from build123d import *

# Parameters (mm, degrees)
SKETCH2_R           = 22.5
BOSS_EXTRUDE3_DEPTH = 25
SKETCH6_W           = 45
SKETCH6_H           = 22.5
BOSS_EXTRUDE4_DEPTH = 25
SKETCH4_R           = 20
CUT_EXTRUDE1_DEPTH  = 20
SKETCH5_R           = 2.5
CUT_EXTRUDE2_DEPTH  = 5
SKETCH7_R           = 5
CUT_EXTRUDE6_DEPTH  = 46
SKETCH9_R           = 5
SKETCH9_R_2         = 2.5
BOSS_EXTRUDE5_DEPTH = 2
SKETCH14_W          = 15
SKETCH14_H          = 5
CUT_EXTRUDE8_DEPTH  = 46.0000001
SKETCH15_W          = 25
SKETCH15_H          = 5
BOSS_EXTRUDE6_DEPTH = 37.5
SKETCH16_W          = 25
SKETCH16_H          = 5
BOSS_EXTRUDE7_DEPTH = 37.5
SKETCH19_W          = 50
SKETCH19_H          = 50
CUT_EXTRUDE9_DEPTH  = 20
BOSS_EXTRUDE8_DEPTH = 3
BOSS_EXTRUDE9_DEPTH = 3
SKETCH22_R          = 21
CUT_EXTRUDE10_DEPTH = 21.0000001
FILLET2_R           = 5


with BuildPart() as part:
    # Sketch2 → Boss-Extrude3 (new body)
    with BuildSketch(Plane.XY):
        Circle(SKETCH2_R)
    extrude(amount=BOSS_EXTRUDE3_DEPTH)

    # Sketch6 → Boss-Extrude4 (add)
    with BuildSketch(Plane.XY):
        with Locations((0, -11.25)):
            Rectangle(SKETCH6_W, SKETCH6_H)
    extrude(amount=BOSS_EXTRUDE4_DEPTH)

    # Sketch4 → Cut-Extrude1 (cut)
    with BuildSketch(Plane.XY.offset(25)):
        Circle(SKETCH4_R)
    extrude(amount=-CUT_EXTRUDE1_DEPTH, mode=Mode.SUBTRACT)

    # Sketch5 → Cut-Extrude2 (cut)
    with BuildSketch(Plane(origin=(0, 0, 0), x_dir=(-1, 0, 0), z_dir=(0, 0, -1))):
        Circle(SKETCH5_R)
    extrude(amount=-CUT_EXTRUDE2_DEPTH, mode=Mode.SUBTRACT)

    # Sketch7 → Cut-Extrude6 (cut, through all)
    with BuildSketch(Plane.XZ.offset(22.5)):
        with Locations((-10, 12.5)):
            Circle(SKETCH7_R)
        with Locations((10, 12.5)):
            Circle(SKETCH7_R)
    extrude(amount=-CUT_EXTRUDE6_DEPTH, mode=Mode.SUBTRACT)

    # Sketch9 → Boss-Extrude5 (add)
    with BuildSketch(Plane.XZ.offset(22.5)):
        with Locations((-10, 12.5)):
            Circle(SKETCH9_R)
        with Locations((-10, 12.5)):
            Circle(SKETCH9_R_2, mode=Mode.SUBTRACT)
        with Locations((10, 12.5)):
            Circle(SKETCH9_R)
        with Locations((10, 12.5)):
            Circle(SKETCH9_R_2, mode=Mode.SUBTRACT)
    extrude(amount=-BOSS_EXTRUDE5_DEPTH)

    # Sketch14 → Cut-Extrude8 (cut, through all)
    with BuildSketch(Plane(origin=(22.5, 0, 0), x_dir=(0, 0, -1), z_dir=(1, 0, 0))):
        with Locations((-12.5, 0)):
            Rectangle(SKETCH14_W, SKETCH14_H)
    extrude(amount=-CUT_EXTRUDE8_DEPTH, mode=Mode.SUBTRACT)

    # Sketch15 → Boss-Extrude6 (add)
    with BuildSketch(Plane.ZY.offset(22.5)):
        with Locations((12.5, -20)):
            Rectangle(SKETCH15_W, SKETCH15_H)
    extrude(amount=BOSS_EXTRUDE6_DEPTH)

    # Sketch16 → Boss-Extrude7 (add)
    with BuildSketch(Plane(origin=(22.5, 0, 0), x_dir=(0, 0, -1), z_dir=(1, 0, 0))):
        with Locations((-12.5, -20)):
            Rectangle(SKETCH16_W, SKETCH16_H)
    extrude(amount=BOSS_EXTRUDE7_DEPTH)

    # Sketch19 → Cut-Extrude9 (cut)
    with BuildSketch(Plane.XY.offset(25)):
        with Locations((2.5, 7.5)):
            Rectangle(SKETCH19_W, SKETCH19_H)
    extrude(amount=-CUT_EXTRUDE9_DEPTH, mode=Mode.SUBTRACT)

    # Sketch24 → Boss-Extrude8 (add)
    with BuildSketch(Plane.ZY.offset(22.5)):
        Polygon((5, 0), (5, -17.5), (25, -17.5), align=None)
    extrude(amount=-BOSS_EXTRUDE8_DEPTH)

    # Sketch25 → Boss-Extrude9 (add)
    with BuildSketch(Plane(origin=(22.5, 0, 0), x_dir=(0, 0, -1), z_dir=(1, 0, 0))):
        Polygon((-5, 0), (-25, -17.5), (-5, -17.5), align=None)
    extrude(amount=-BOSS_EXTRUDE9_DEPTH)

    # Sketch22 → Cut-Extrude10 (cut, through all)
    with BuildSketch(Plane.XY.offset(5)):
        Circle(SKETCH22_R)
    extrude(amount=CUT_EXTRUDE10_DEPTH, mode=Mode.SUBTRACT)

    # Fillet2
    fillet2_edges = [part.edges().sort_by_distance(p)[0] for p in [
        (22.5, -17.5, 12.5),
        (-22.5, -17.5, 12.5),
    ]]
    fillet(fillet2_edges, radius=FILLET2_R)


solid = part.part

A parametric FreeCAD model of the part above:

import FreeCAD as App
import Part
import Sketcher


def edges_at(feature, points):
    """Names of the edges that pass closest to the given points."""
    edges = feature.Shape.Edges
    near = lambda p: min(range(len(edges)), key=lambda i: edges[i].distToShape(Part.Vertex(*p))[0])
    return sorted({f"Edge{near(p) + 1}" for p in points})

doc = App.newDocument("Part")
body = doc.addObject("PartDesign::Body", "Body")

sketch1 = doc.addObject("Sketcher::SketchObject", "Sketch")
body.addObject(sketch1)
sketch1.AttachmentSupport = (doc.XY_Plane, [""])
sketch1.MapMode = "FlatFace"
sketch1.addGeometry(Part.Circle(App.Vector(0, 0, 0), App.Vector(0, 0, 1), 22.5), False)
sketch1.addConstraint([
    Sketcher.Constraint("Coincident", 0, 3, -1, 1),
    Sketcher.Constraint("Diameter", 0, 45.0),
])
pad1 = doc.addObject("PartDesign::Pad", "Pad")
body.addObject(pad1)
pad1.Profile = sketch1
pad1.Length = 25

sketch2 = doc.addObject("Sketcher::SketchObject", "Sketch001")
body.addObject(sketch2)
sketch2.AttachmentSupport = (doc.XY_Plane, [""])
sketch2.MapMode = "FlatFace"
sketch2.addGeometry([
    Part.LineSegment(App.Vector(-22.5, 0, 0), App.Vector(-22.5, -22.5, 0)),
    Part.LineSegment(App.Vector(-22.5, -22.5, 0), App.Vector(22.5, -22.5, 0)),
    Part.LineSegment(App.Vector(22.5, -22.5, 0), App.Vector(22.5, 0, 0)),
    Part.LineSegment(App.Vector(22.5, 0, 0), App.Vector(-22.5, 0, 0)),
], False)
sketch2.addConstraint([
    Sketcher.Constraint("Coincident", 0, 2, 1, 1),
    Sketcher.Constraint("Coincident", 1, 2, 2, 1),
    Sketcher.Constraint("Coincident", 2, 2, 3, 1),
    Sketcher.Constraint("Coincident", 3, 2, 0, 1),
    Sketcher.Constraint("Vertical", 0),
    Sketcher.Constraint("Horizontal", 1),
    Sketcher.Constraint("Vertical", 2),
    Sketcher.Constraint("Horizontal", 3),
    Sketcher.Constraint("Symmetric", 2, 2, 3, 2, -1, 1),
    Sketcher.Constraint("DistanceX", 1, 1, 1, 2, 45.0),
    Sketcher.Constraint("DistanceY", 0, 2, 0, 1, 22.5),
])
pad2 = doc.addObject("PartDesign::Pad", "Pad001")
body.addObject(pad2)
pad2.Profile = sketch2
pad2.Length = 25

sketch3 = doc.addObject("Sketcher::SketchObject", "Sketch002")
body.addObject(sketch3)
sketch3.AttachmentSupport = (doc.XY_Plane, [""])
sketch3.MapMode = "FlatFace"
sketch3.AttachmentOffset = App.Placement(App.Vector(0, 0, 25), App.Rotation())
sketch3.addGeometry(Part.Circle(App.Vector(0, 0, 0), App.Vector(0, 0, 1), 20), False)
sketch3.addConstraint([
    Sketcher.Constraint("Coincident", 0, 3, -1, 1),
    Sketcher.Constraint("Diameter", 0, 40.0),
])
pocket1 = doc.addObject("PartDesign::Pocket", "Pocket")
body.addObject(pocket1)
pocket1.Profile = sketch3
pocket1.Length = 20

sketch4 = doc.addObject("Sketcher::SketchObject", "Sketch003")
body.addObject(sketch4)
sketch4.AttachmentSupport = (doc.XY_Plane, [""])
sketch4.MapMode = "FlatFace"
sketch4.addGeometry(Part.Circle(App.Vector(0, 0, 0), App.Vector(0, 0, 1), 2.5), False)
sketch4.addConstraint([
    Sketcher.Constraint("Coincident", 0, 3, -1, 1),
    Sketcher.Constraint("Diameter", 0, 5.0),
])
pocket2 = doc.addObject("PartDesign::Pocket", "Pocket001")
body.addObject(pocket2)
pocket2.Profile = sketch4
pocket2.Length = 5
pocket2.Reversed = True

sketch5 = doc.addObject("Sketcher::SketchObject", "Sketch004")
body.addObject(sketch5)
sketch5.AttachmentSupport = (doc.XZ_Plane, [""])
sketch5.MapMode = "FlatFace"
sketch5.AttachmentOffset = App.Placement(App.Vector(0, 0, 22.5), App.Rotation())
sketch5.addGeometry([
    Part.Circle(App.Vector(-10, 12.5, 0), App.Vector(0, 0, 1), 5),
    Part.Circle(App.Vector(10, 12.5, 0), App.Vector(0, 0, 1), 5),
], False)
sketch5.addConstraint([
    Sketcher.Constraint("Equal", 0, 1),
    Sketcher.Constraint("Symmetric", 0, 3, 1, 3, -2),
    Sketcher.Constraint("Diameter", 0, 10.0),
    Sketcher.Constraint("DistanceX", 0, 3, -1, 1, 10.0),
    Sketcher.Constraint("DistanceY", -1, 1, 0, 3, 12.5),
])
pocket3 = doc.addObject("PartDesign::Pocket", "Pocket002")
body.addObject(pocket3)
pocket3.Profile = sketch5
pocket3.Type = "ThroughAll"

sketch6 = doc.addObject("Sketcher::SketchObject", "Sketch005")
body.addObject(sketch6)
sketch6.AttachmentSupport = (doc.XZ_Plane, [""])
sketch6.MapMode = "FlatFace"
sketch6.AttachmentOffset = App.Placement(App.Vector(0, 0, 22.5), App.Rotation())
sketch6.addGeometry([
    Part.Circle(App.Vector(-10, 12.5, 0), App.Vector(0, 0, 1), 5),
    Part.Circle(App.Vector(-10, 12.5, 0), App.Vector(0, 0, 1), 2.5),
    Part.Circle(App.Vector(10, 12.5, 0), App.Vector(0, 0, 1), 5),
    Part.Circle(App.Vector(10, 12.5, 0), App.Vector(0, 0, 1), 2.5),
], False)
sketch6.addConstraint([
    Sketcher.Constraint("Coincident", 1, 3, 0, 3),
    Sketcher.Constraint("Coincident", 3, 3, 2, 3),
    Sketcher.Constraint("Equal", 0, 2),
    Sketcher.Constraint("Equal", 1, 3),
    Sketcher.Constraint("Symmetric", 0, 3, 2, 3, -2),
    Sketcher.Constraint("Diameter", 0, 10.0),
    Sketcher.Constraint("Diameter", 1, 5.0),
    Sketcher.Constraint("DistanceX", 0, 3, -1, 1, 10.0),
    Sketcher.Constraint("DistanceY", -1, 1, 0, 3, 12.5),
])
pad3 = doc.addObject("PartDesign::Pad", "Pad002")
body.addObject(pad3)
pad3.Profile = sketch6
pad3.Length = 2
pad3.Reversed = True

sketch7 = doc.addObject("Sketcher::SketchObject", "Sketch006")
body.addObject(sketch7)
sketch7.AttachmentSupport = (doc.YZ_Plane, [""])
sketch7.MapMode = "FlatFace"
sketch7.AttachmentOffset = App.Placement(App.Vector(0, 0, 22.5), App.Rotation())
sketch7.addGeometry([
    Part.LineSegment(App.Vector(2.5, 20, 0), App.Vector(-2.5, 20, 0)),
    Part.LineSegment(App.Vector(-2.5, 20, 0), App.Vector(-2.5, 5, 0)),
    Part.LineSegment(App.Vector(-2.5, 5, 0), App.Vector(2.5, 5, 0)),
    Part.LineSegment(App.Vector(2.5, 5, 0), App.Vector(2.5, 20, 0)),
], False)
sketch7.addConstraint([
    Sketcher.Constraint("Coincident", 0, 2, 1, 1),
    Sketcher.Constraint("Coincident", 1, 2, 2, 1),
    Sketcher.Constraint("Coincident", 2, 2, 3, 1),
    Sketcher.Constraint("Coincident", 3, 2, 0, 1),
    Sketcher.Constraint("Horizontal", 0),
    Sketcher.Constraint("Vertical", 1),
    Sketcher.Constraint("Horizontal", 2),
    Sketcher.Constraint("Vertical", 3),
    Sketcher.Constraint("DistanceX", 0, 2, 0, 1, 5.0),
    Sketcher.Constraint("DistanceY", 1, 2, 1, 1, 15.0),
    Sketcher.Constraint("DistanceY", -1, 1, 0, 2, 20.0),
    Sketcher.Constraint("DistanceX", 0, 2, -1, 1, 2.5),
])
pocket4 = doc.addObject("PartDesign::Pocket", "Pocket003")
body.addObject(pocket4)
pocket4.Profile = sketch7
pocket4.Type = "ThroughAll"

sketch8 = doc.addObject("Sketcher::SketchObject", "Sketch007")
body.addObject(sketch8)
sketch8.AttachmentSupport = (doc.YZ_Plane, [""])
sketch8.MapMode = "FlatFace"
sketch8.AttachmentOffset = App.Placement(App.Vector(0, 0, -22.5), App.Rotation())
sketch8.addGeometry([
    Part.LineSegment(App.Vector(-17.5, 0, 0), App.Vector(-22.5, 0, 0)),
    Part.LineSegment(App.Vector(-22.5, 0, 0), App.Vector(-22.5, 25, 0)),
    Part.LineSegment(App.Vector(-22.5, 25, 0), App.Vector(-17.5, 25, 0)),
    Part.LineSegment(App.Vector(-17.5, 25, 0), App.Vector(-17.5, 0, 0)),
], False)
sketch8.addConstraint([
    Sketcher.Constraint("Coincident", 0, 2, 1, 1),
    Sketcher.Constraint("Coincident", 1, 2, 2, 1),
    Sketcher.Constraint("Coincident", 2, 2, 3, 1),
    Sketcher.Constraint("Coincident", 3, 2, 0, 1),
    Sketcher.Constraint("Horizontal", 0),
    Sketcher.Constraint("Vertical", 1),
    Sketcher.Constraint("Horizontal", 2),
    Sketcher.Constraint("Vertical", 3),
    Sketcher.Constraint("PointOnObject", 0, 2, -1),
    Sketcher.Constraint("DistanceX", 0, 2, 0, 1, 5.0),
    Sketcher.Constraint("DistanceY", 1, 1, 1, 2, 25.0),
    Sketcher.Constraint("DistanceX", 0, 2, -1, 1, 22.5),
])
pad4 = doc.addObject("PartDesign::Pad", "Pad003")
body.addObject(pad4)
pad4.Profile = sketch8
pad4.Length = 37.5
pad4.Reversed = True

sketch9 = doc.addObject("Sketcher::SketchObject", "Sketch008")
body.addObject(sketch9)
sketch9.AttachmentSupport = (doc.YZ_Plane, [""])
sketch9.MapMode = "FlatFace"
sketch9.AttachmentOffset = App.Placement(App.Vector(0, 0, 22.5), App.Rotation())
sketch9.addGeometry([
    Part.LineSegment(App.Vector(-17.5, 25, 0), App.Vector(-22.5, 25, 0)),
    Part.LineSegment(App.Vector(-22.5, 25, 0), App.Vector(-22.5, 0, 0)),
    Part.LineSegment(App.Vector(-22.5, 0, 0), App.Vector(-17.5, 0, 0)),
    Part.LineSegment(App.Vector(-17.5, 0, 0), App.Vector(-17.5, 25, 0)),
], False)
sketch9.addConstraint([
    Sketcher.Constraint("Coincident", 0, 2, 1, 1),
    Sketcher.Constraint("Coincident", 1, 2, 2, 1),
    Sketcher.Constraint("Coincident", 2, 2, 3, 1),
    Sketcher.Constraint("Coincident", 3, 2, 0, 1),
    Sketcher.Constraint("Horizontal", 0),
    Sketcher.Constraint("Vertical", 1),
    Sketcher.Constraint("Horizontal", 2),
    Sketcher.Constraint("Vertical", 3),
    Sketcher.Constraint("PointOnObject", 1, 2, -1),
    Sketcher.Constraint("DistanceX", 0, 2, 0, 1, 5.0),
    Sketcher.Constraint("DistanceY", 1, 2, 1, 1, 25.0),
    Sketcher.Constraint("DistanceX", 0, 2, -1, 1, 22.5),
])
pad5 = doc.addObject("PartDesign::Pad", "Pad004")
body.addObject(pad5)
pad5.Profile = sketch9
pad5.Length = 37.5

sketch10 = doc.addObject("Sketcher::SketchObject", "Sketch009")
body.addObject(sketch10)
sketch10.AttachmentSupport = (doc.XY_Plane, [""])
sketch10.MapMode = "FlatFace"
sketch10.AttachmentOffset = App.Placement(App.Vector(0, 0, 25), App.Rotation())
sketch10.addGeometry([
    Part.LineSegment(App.Vector(-22.5, 32.5, 0), App.Vector(-22.5, -17.5, 0)),
    Part.LineSegment(App.Vector(-22.5, -17.5, 0), App.Vector(27.5, -17.5, 0)),
    Part.LineSegment(App.Vector(27.5, -17.5, 0), App.Vector(27.5, 32.5, 0)),
    Part.LineSegment(App.Vector(27.5, 32.5, 0), App.Vector(-22.5, 32.5, 0)),
], False)
sketch10.addConstraint([
    Sketcher.Constraint("Coincident", 0, 2, 1, 1),
    Sketcher.Constraint("Coincident", 1, 2, 2, 1),
    Sketcher.Constraint("Coincident", 2, 2, 3, 1),
    Sketcher.Constraint("Coincident", 3, 2, 0, 1),
    Sketcher.Constraint("Vertical", 0),
    Sketcher.Constraint("Horizontal", 1),
    Sketcher.Constraint("Vertical", 2),
    Sketcher.Constraint("Horizontal", 3),
    Sketcher.Constraint("Equal", 3, 0),
    Sketcher.Constraint("DistanceX", 1, 1, 1, 2, 50.0),
    Sketcher.Constraint("DistanceX", 0, 2, -1, 1, 22.5),
    Sketcher.Constraint("DistanceY", 0, 2, -1, 1, 17.5),
])
pocket5 = doc.addObject("PartDesign::Pocket", "Pocket004")
body.addObject(pocket5)
pocket5.Profile = sketch10
pocket5.Length = 20

sketch11 = doc.addObject("Sketcher::SketchObject", "Sketch010")
body.addObject(sketch11)
sketch11.AttachmentSupport = (doc.YZ_Plane, [""])
sketch11.MapMode = "FlatFace"
sketch11.AttachmentOffset = App.Placement(App.Vector(0, 0, -22.5), App.Rotation())
sketch11.addGeometry([
    Part.LineSegment(App.Vector(0, 5, 0), App.Vector(-17.5, 5, 0)),
    Part.LineSegment(App.Vector(-17.5, 5, 0), App.Vector(-17.5, 25, 0)),
    Part.LineSegment(App.Vector(-17.5, 25, 0), App.Vector(0, 5, 0)),
], False)
sketch11.addConstraint([
    Sketcher.Constraint("Coincident", 0, 2, 1, 1),
    Sketcher.Constraint("Coincident", 1, 2, 2, 1),
    Sketcher.Constraint("Coincident", 2, 2, 0, 1),
    Sketcher.Constraint("Horizontal", 0),
    Sketcher.Constraint("Vertical", 1),
    Sketcher.Constraint("PointOnObject", 2, 2, -2),
    Sketcher.Constraint("DistanceY", 1, 1, 1, 2, 20.0),
    Sketcher.Constraint("DistanceX", 0, 2, 0, 1, 17.5),
    Sketcher.Constraint("DistanceY", -1, 1, 0, 2, 5.0),
])
pad6 = doc.addObject("PartDesign::Pad", "Pad005")
body.addObject(pad6)
pad6.Profile = sketch11
pad6.Length = 3

sketch12 = doc.addObject("Sketcher::SketchObject", "Sketch011")
body.addObject(sketch12)
sketch12.AttachmentSupport = (doc.YZ_Plane, [""])
sketch12.MapMode = "FlatFace"
sketch12.AttachmentOffset = App.Placement(App.Vector(0, 0, 22.5), App.Rotation())
sketch12.addGeometry([
    Part.LineSegment(App.Vector(0, 5, 0), App.Vector(-17.5, 25, 0)),
    Part.LineSegment(App.Vector(-17.5, 25, 0), App.Vector(-17.5, 5, 0)),
    Part.LineSegment(App.Vector(-17.5, 5, 0), App.Vector(0, 5, 0)),
], False)
sketch12.addConstraint([
    Sketcher.Constraint("Coincident", 0, 2, 1, 1),
    Sketcher.Constraint("Coincident", 1, 2, 2, 1),
    Sketcher.Constraint("Coincident", 2, 2, 0, 1),
    Sketcher.Constraint("Vertical", 1),
    Sketcher.Constraint("Horizontal", 2),
    Sketcher.Constraint("PointOnObject", 2, 2, -2),
    Sketcher.Constraint("DistanceY", 1, 2, 1, 1, 20.0),
    Sketcher.Constraint("DistanceX", 2, 1, 2, 2, 17.5),
    Sketcher.Constraint("DistanceY", -1, 1, 0, 2, 25.0),
])
pad7 = doc.addObject("PartDesign::Pad", "Pad006")
body.addObject(pad7)
pad7.Profile = sketch12
pad7.Length = 3
pad7.Reversed = True

sketch13 = doc.addObject("Sketcher::SketchObject", "Sketch012")
body.addObject(sketch13)
sketch13.AttachmentSupport = (doc.XY_Plane, [""])
sketch13.MapMode = "FlatFace"
sketch13.AttachmentOffset = App.Placement(App.Vector(0, 0, 5), App.Rotation())
sketch13.addGeometry(Part.Circle(App.Vector(0, 0, 0), App.Vector(0, 0, 1), 21), False)
sketch13.addConstraint([
    Sketcher.Constraint("Coincident", 0, 3, -1, 1),
    Sketcher.Constraint("Diameter", 0, 42.0),
])
pocket6 = doc.addObject("PartDesign::Pocket", "Pocket005")
body.addObject(pocket6)
pocket6.Profile = sketch13
pocket6.Type = "ThroughAll"
pocket6.Reversed = True
doc.recompute()

fillet = doc.addObject("PartDesign::Fillet", "Fillet")
body.addObject(fillet)
fillet.Base = (pocket6, edges_at(pocket6, [(22.5, -17.5, 12.5), (-22.5, -17.5, 12.5)]))
fillet.Radius = 5

doc.recompute()
